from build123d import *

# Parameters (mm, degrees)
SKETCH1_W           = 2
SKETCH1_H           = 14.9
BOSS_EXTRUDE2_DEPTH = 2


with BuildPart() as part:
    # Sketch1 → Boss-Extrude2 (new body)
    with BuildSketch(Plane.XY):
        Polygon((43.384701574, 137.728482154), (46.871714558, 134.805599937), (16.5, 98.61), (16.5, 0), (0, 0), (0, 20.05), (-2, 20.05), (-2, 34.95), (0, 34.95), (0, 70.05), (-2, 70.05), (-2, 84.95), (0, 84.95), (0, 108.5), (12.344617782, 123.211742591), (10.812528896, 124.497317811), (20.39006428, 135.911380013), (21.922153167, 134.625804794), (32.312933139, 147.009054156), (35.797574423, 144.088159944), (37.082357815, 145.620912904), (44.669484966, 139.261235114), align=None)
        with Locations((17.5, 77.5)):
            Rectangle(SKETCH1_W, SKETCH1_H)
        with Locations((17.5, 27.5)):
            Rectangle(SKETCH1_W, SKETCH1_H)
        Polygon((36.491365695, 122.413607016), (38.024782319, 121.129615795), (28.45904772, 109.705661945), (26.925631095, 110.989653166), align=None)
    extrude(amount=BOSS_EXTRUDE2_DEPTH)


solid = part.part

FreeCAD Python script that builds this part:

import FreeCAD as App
import Part
import Sketcher
Q = App.Units.Quantity


def add_polygon(sketch, points):
    """Adds a closed chain of lines whose ends are joined by coincident constraints."""
    first, n = sketch.GeometryCount, len(points)
    for a, b in zip(points, points[1:] + points[:1]):
        sketch.addGeometry(Part.LineSegment(App.Vector(*a, 0), App.Vector(*b, 0)), False)
    for i in range(n):
        sketch.addConstraint(Sketcher.Constraint("Coincident", first + i, 2, first + (i + 1) % n, 1))

doc = App.newDocument("Part")
body = doc.addObject("PartDesign::Body", "Body")
body.AllowCompound = True

sketch1 = doc.addObject("Sketcher::SketchObject", "Sketch")
body.addObject(sketch1)
sketch1.AttachmentSupport = (doc.XY_Plane, [""])
sketch1.MapMode = "FlatFace"
add_polygon(sketch1, [(46.9, 134.8), (43.4, 137.7), (44.7, 139.3), (37.1, 145.6), (35.8, 144.1), (32.3, 147), (21.9, 134.6), (20.4, 135.9), (10.8, 124.5), (12.3, 123.2), (0, 108.5), (0, 85), (-2, 85), (-2, 70), (0, 70), (0, 35), (-2, 35), (-2, 20.1), (0, 20.1), (0, 0), (16.5, 0), (16.5, 20.1), (18.5, 20.1), (18.5, 35), (16.5, 35), (16.5, 70), (18.5, 70), (18.5, 85), (16.5, 85), (16.5, 98.6)])
add_polygon(sketch1, [(38, 121.1), (36.5, 122.4), (26.9, 111), (28.5, 109.7)])
sketch1.addConstraint([
    Sketcher.Constraint("Vertical", 10),
    Sketcher.Constraint("Horizontal", 11),
    Sketcher.Constraint("Vertical", 12),
    Sketcher.Constraint("Horizontal", 13),
    Sketcher.Constraint("Vertical", 14),
    Sketcher.Constraint("Horizontal", 15),
    Sketcher.Constraint("Vertical", 16),
    Sketcher.Constraint("Horizontal", 17),
    Sketcher.Constraint("Vertical", 18),
    Sketcher.Constraint("Horizontal", 19),
    Sketcher.Constraint("Vertical", 20),
    Sketcher.Constraint("Horizontal", 21),
    Sketcher.Constraint("Vertical", 22),
    Sketcher.Constraint("Horizontal", 23),
    Sketcher.Constraint("Vertical", 24),
    Sketcher.Constraint("Horizontal", 25),
    Sketcher.Constraint("Vertical", 26),
    Sketcher.Constraint("Horizontal", 27),
    Sketcher.Constraint("Vertical", 28),
    Sketcher.Constraint("Coincident", 18, 2, -1, 1),
    Sketcher.Constraint("PointOnObject", 9, 2, -2),
    Sketcher.Constraint("PointOnObject", 13, 2, -2),
    Sketcher.Constraint("Perpendicular", 0, 1),
    Sketcher.Constraint("Perpendicular", 1, 2),
    Sketcher.Constraint("Perpendicular", 2, 3),
    Sketcher.Constraint("Perpendicular", 3, 4),
    Sketcher.Constraint("Perpendicular", 5, 6),
    Sketcher.Constraint("Perpendicular", 6, 7),
    Sketcher.Constraint("Perpendicular", 7, 8),
    Sketcher.Constraint("Perpendicular", 8, 9),
    Sketcher.Constraint("Parallel", 9, 29),
    Sketcher.Constraint("Perpendicular", 30, 31),
    Sketcher.Constraint("Perpendicular", 31, 32),
    Sketcher.Constraint("Perpendicular", 32, 33),
    Sketcher.Constraint("Horizontal", 17, 2, 20, 2),
    Sketcher.Constraint("Horizontal", 15, 2, 22, 2),
    Sketcher.Constraint("Horizontal", 13, 2, 24, 2),
    Sketcher.Constraint("Horizontal", 11, 2, 26, 2),
    Sketcher.Constraint("Vertical", 12, 2, 15, 2),
    Sketcher.Constraint("Vertical", 20, 2, 23, 2),
    Sketcher.Constraint("Vertical", 22, 2, 25, 2),
    Sketcher.Constraint("Vertical", 24, 2, 27, 2),
    Sketcher.Constraint("Equal", 17, 21),
    Sketcher.Constraint("Equal", 12, 16),
    Sketcher.Constraint("Equal", 1, 3),
    Sketcher.Constraint("Equal", 3, 6),
    Sketcher.Constraint("Equal", 6, 8),
    Sketcher.Constraint("Equal", 8, 30),
    Sketcher.Constraint("Equal", 7, 31),
    Sketcher.Constraint("DistanceX", 11, 2, 11, 1, Q("2 mm")),
    Sketcher.Constraint("Angle", 5, Q("-130 deg")),
    Sketcher.Constraint("Distance", 1, Q("2 mm")),
    Sketcher.Constraint("DistanceX", 19, 1, 19, 2, Q("16.5 mm")),
    Sketcher.Constraint("DistanceY", 12, 2, 12, 1, Q("14.9 mm")),
    Sketcher.Constraint("DistanceY", 14, 2, 14, 1, Q("35.1 mm")),
    Sketcher.Constraint("Distance", 2, Q("9.9 mm")),
    Sketcher.Constraint("Distance", 7, Q("14.9 mm")),
    Sketcher.Constraint("DistanceY", 10, 2, 10, 1, Q("23.55 mm")),
    Sketcher.Constraint("DistanceY", 18, 2, 18, 1, Q("20.05 mm")),
    Sketcher.Constraint("DistanceY", 28, 1, 28, 2, Q("13.66 mm")),
    Sketcher.Constraint("Distance", 0, Q("4.55 mm")),
    Sketcher.Constraint("Distance", 29, Q("47.25 mm")),
    Sketcher.Constraint("DistanceX", -1, 1, 0, 2, Q("43.384702 mm")),
    Sketcher.Constraint("DistanceX", 6, 2, 30, 2, Q("16.101301 mm")),
    Sketcher.Constraint("DistanceY", -1, 1, 6, 2, Q("135.91138 mm")),
    Sketcher.Constraint("DistanceX", -1, 1, 31, 2, Q("26.925631 mm")),
    Sketcher.Constraint("DistanceY", -1, 1, 32, 2, Q("109.705662 mm")),
])
pad1 = doc.addObject("PartDesign::Pad", "Pad")
body.addObject(pad1)
pad1.Profile = sketch1
pad1.Length = 2

doc.recompute()
